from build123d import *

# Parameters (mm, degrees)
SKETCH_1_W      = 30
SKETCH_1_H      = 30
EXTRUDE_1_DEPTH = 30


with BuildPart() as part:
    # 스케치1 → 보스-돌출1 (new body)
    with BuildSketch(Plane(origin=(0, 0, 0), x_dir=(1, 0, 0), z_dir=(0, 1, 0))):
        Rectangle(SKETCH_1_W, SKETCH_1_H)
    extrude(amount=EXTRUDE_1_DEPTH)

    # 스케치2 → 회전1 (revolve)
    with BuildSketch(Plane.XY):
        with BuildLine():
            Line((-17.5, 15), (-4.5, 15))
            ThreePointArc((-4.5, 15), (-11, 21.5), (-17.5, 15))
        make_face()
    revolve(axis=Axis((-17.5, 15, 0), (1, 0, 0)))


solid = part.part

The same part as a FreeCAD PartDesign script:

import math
import FreeCAD as App
import Part
import Sketcher
from FreeCAD import Vector
Q = App.Units.Quantity

doc = App.newDocument("Part")
body = doc.addObject("PartDesign::Body", "Body")

sketch1 = body.newObject("Sketcher::SketchObject", "Sketch")
sketch1.AttachmentSupport = (doc.getObject("XZ_Plane"), [""])
sketch1.MapMode = "FlatFace"
sketch1.addGeometry([
    Part.LineSegment(Vector(-15, -15, 0), Vector(-15, 15, 0)),
    Part.LineSegment(Vector(-15, 15, 0), Vector(15, 15, 0)),
    Part.LineSegment(Vector(15, 15, 0), Vector(15, -15, 0)),
    Part.LineSegment(Vector(15, -15, 0), Vector(-15, -15, 0)),
], False)
sketch1.addConstraint([
    Sketcher.Constraint("Coincident", 0, 2, 1, 1),
    Sketcher.Constraint("Coincident", 1, 2, 2, 1),
    Sketcher.Constraint("Coincident", 2, 2, 3, 1),
    Sketcher.Constraint("Coincident", 3, 2, 0, 1),
    Sketcher.Constraint("Vertical", 0),
    Sketcher.Constraint("Horizontal", 1),
    Sketcher.Constraint("Vertical", 2),
    Sketcher.Constraint("Horizontal", 3),
    Sketcher.Constraint("Symmetric", 0, 2, 2, 2, -1, 1),
    Sketcher.Constraint("Equal", 3, 0),
    Sketcher.Constraint("DistanceX", 1, 1, 1, 2, Q("30 mm")),
])
pad1 = body.newObject("PartDesign::Pad", "Pad")
pad1.Profile = sketch1
pad1.Length = 30
pad1.Reversed = True

sketch2 = body.newObject("Sketcher::SketchObject", "Sketch001")
sketch2.AttachmentSupport = (doc.getObject("XY_Plane"), [""])
sketch2.MapMode = "FlatFace"
sketch2.addGeometry([
    Part.LineSegment(Vector(-18, 15, 0), Vector(-4, 15, 0)),
    Part.ArcOfCircle(Part.Circle(Vector(-11, 15, 0), Vector(0, 0, 1), 6), math.radians(0), math.radians(180)),
], False)
sketch2.addGeometry(Part.LineSegment(Vector(-18, 15, 0), Vector(-4, 15, 0)), True)
sketch2.addConstraint([
    Sketcher.Constraint("Coincident", 0, 1, 1, 2),
    Sketcher.Constraint("Coincident", 1, 1, 0, 2),
    Sketcher.Constraint("Horizontal", 0),
    Sketcher.Constraint("Horizontal", 2),
    Sketcher.Constraint("Coincident", 2, 1, 0, 1),
    Sketcher.Constraint("Horizontal", 1, 3, 0, 1),
    Sketcher.Constraint("Equal", 0, 2),
    Sketcher.Constraint("Radius", 1, Q("6.5 mm")),
    Sketcher.Constraint("DistanceX", 1, 3, -1, 1, Q("11 mm")),
    Sketcher.Constraint("DistanceY", -1, 1, 1, 3, Q("15 mm")),
])
revolution = body.newObject("PartDesign::Revolution", "Revolution")
revolution.Profile = sketch2
revolution.ReferenceAxis = (sketch2, ["Axis0"])
revolution.Angle = 360

doc.recompute()
